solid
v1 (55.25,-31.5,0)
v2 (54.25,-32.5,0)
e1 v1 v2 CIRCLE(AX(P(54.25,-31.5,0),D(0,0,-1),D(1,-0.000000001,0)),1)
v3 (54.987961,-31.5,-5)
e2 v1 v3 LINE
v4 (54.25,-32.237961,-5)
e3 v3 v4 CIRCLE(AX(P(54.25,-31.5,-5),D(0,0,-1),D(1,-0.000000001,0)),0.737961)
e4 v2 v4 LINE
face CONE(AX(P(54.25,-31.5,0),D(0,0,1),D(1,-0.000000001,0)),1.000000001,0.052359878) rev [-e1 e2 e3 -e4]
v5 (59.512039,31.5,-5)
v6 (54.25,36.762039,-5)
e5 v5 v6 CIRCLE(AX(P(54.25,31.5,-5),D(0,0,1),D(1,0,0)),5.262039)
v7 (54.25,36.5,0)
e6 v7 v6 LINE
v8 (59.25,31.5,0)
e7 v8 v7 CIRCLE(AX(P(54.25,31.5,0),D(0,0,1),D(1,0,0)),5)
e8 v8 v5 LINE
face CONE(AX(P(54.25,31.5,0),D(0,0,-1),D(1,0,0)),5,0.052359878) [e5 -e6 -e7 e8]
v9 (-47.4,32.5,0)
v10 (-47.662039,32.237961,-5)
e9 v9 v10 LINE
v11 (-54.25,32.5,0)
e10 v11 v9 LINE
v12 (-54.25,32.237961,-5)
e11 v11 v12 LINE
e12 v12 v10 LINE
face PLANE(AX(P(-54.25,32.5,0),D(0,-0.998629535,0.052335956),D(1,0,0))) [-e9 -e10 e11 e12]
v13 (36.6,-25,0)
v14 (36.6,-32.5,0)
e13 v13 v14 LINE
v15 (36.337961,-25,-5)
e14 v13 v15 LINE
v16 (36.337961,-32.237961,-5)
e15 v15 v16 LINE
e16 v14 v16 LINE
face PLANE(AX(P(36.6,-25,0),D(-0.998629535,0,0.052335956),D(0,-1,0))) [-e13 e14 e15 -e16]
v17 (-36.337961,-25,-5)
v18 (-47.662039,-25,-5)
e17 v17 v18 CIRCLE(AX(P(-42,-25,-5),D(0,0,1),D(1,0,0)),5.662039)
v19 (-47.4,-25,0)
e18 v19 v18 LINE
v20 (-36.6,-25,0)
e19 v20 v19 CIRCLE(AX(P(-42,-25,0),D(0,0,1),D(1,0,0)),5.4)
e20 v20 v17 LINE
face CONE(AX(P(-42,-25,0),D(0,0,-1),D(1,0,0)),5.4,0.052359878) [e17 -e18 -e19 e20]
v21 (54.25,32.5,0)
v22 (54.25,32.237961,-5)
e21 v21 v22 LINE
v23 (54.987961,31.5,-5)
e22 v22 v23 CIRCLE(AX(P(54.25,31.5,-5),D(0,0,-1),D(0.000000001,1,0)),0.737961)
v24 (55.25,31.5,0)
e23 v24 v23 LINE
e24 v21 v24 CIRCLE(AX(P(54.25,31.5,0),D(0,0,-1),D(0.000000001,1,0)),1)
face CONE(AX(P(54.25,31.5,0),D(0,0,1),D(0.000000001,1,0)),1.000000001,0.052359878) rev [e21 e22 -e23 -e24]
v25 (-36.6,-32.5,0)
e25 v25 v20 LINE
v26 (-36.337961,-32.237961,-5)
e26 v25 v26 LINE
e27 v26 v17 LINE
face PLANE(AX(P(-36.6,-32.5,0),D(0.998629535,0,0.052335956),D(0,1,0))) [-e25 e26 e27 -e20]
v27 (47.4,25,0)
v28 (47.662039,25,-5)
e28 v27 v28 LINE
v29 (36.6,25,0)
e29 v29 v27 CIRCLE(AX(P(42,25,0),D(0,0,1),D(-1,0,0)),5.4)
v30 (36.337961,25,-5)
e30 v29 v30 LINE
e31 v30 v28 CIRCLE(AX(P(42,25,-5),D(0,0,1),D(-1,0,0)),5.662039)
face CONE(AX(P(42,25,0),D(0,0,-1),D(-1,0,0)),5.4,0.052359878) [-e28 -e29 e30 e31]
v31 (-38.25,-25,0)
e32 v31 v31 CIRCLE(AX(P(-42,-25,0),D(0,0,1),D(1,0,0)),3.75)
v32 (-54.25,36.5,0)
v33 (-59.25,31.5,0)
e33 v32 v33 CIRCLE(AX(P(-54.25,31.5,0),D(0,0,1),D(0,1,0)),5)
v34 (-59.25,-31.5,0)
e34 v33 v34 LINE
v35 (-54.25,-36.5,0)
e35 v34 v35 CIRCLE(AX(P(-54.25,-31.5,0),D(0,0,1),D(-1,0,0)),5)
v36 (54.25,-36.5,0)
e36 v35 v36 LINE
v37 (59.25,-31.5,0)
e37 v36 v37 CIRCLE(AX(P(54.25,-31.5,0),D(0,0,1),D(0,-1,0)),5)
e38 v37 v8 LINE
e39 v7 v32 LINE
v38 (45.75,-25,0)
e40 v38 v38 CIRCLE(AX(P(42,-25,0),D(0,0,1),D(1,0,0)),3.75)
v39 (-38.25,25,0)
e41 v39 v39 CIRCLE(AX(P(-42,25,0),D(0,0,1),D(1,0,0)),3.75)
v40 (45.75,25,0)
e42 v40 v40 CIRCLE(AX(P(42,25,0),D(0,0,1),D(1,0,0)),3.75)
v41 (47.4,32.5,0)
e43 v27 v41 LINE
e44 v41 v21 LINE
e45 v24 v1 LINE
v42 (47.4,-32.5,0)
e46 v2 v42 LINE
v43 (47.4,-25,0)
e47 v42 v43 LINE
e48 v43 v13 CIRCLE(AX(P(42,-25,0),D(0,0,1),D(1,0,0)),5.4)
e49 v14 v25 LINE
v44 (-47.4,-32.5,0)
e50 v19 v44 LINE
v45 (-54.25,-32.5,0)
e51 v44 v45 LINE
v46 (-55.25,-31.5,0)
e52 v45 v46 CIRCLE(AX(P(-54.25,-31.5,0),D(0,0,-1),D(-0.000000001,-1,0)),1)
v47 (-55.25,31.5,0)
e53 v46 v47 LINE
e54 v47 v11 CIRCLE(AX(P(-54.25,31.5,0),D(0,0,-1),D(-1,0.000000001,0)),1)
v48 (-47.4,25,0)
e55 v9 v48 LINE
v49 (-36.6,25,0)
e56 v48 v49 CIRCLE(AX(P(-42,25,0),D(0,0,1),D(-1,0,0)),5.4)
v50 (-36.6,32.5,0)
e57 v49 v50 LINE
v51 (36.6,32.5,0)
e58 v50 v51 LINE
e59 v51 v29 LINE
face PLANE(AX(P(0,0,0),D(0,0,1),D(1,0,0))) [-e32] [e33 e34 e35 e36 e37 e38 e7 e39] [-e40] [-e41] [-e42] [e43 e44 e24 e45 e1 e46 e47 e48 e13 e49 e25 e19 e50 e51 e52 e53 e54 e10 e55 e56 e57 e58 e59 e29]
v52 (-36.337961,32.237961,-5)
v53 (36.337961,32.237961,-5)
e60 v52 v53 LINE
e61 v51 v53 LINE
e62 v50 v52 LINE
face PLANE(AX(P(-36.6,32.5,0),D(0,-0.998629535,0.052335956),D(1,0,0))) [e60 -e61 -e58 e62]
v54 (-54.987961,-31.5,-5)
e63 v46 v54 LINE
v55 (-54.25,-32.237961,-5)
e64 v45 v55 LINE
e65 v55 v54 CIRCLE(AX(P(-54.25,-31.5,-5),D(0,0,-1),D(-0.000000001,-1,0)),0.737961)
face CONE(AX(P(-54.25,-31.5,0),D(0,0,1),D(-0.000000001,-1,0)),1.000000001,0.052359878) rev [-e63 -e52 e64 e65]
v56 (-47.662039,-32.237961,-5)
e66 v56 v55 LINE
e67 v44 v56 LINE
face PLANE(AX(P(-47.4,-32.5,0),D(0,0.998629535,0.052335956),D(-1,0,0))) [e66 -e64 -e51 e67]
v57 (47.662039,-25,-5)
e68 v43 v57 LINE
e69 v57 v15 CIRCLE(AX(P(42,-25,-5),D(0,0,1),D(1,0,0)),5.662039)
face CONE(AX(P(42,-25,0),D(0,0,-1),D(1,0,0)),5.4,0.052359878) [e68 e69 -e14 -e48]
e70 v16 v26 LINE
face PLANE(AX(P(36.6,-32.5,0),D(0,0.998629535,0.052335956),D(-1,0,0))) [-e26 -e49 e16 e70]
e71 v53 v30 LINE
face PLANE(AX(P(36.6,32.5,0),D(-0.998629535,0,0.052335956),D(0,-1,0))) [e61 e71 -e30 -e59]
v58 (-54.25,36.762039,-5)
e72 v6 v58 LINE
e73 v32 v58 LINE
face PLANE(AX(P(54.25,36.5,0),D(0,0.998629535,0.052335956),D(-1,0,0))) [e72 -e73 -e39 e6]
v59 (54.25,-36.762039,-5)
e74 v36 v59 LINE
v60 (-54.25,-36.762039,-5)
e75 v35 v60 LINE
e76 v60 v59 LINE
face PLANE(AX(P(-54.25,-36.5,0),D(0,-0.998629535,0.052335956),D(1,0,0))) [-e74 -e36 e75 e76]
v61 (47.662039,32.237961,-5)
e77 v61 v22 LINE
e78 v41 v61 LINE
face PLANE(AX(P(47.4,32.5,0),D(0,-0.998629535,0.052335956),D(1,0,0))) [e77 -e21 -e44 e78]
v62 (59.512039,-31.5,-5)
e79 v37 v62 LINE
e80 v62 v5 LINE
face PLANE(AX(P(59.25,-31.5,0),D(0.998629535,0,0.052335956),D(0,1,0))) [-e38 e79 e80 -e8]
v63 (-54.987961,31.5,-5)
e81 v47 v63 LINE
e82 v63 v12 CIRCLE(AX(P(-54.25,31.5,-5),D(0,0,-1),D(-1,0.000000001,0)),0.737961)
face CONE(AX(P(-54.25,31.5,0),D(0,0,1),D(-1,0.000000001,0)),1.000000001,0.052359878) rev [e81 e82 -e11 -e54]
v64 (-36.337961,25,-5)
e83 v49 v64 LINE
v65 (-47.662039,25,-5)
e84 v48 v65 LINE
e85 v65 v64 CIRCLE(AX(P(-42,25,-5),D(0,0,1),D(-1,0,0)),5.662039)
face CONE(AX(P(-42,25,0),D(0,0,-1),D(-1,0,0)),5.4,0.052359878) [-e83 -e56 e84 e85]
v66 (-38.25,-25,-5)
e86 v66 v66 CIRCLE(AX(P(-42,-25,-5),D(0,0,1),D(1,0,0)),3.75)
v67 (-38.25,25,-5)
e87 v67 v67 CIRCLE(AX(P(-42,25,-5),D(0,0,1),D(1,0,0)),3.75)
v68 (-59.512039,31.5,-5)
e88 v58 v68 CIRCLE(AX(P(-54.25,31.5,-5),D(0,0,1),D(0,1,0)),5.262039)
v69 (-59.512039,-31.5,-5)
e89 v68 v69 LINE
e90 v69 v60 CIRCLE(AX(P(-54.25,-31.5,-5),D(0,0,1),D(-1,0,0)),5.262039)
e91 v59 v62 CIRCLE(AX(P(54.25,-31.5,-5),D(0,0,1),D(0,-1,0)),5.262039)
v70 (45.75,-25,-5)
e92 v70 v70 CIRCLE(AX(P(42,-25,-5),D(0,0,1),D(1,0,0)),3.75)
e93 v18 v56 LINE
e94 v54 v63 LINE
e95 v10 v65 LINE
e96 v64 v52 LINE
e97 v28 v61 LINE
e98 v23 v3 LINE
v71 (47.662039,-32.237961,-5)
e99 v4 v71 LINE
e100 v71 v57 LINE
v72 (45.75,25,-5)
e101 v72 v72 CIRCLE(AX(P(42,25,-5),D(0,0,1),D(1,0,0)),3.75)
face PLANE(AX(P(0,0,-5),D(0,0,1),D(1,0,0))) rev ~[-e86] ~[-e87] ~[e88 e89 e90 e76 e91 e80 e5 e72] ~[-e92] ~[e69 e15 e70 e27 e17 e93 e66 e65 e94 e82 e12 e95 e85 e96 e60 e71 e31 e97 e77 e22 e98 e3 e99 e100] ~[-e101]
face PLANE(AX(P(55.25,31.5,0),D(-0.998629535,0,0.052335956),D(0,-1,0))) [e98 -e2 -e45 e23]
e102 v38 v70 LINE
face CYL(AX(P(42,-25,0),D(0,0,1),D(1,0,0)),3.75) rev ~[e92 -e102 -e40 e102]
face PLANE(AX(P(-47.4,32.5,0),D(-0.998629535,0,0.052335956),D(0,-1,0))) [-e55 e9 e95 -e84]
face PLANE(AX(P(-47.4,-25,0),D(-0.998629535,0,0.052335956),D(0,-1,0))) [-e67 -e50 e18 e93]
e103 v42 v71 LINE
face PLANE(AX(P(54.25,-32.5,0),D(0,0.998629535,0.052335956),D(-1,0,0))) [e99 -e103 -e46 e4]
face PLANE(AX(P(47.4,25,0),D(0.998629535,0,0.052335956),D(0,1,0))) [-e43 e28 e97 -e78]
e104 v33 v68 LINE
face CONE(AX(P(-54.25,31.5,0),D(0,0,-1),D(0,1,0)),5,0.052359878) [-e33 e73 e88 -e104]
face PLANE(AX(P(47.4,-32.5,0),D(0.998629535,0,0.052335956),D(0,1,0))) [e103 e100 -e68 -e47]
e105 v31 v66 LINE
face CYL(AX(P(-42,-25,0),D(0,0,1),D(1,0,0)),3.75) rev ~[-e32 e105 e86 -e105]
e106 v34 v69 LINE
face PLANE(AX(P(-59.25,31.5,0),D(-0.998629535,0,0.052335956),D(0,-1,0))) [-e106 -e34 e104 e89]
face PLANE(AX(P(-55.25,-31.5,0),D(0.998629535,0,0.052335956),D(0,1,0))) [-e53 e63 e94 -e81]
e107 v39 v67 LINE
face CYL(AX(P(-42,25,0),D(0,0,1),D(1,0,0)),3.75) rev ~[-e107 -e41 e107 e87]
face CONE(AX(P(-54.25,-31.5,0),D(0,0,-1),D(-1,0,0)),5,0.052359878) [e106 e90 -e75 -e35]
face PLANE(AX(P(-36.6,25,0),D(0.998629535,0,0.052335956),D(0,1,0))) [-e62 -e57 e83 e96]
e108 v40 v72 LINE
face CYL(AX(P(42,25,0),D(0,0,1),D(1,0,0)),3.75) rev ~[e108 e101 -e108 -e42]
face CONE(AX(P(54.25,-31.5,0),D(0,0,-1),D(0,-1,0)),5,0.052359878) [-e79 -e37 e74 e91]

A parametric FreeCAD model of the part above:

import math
import FreeCAD as App
import Part
import Sketcher

V = App.Vector


def faces_at(feature, points):
    """Names of the faces that lie closest to the given points."""
    faces = feature.Shape.Faces
    near = lambda p: min(range(len(faces)), key=lambda i: faces[i].distToShape(Part.Vertex(*p))[0])
    return sorted({f"Face{near(p) + 1}" for p in points})

doc = App.newDocument("Part")
body = doc.addObject("PartDesign::Body", "Body")

# Sketch on XY plane
sketch1 = body.newObject("Sketcher::SketchObject", "Sketch")
sketch1.AttachmentSupport = (doc.getObject("XY_Plane"), [""])
sketch1.MapMode = "FlatFace"
sketch1.addGeometry(Part.ArcOfCircle(Part.Circle(V(-54.25, -31.5, 0), V(0, 0, 1), 5), math.radians(180), math.radians(270)), False)
sketch1.addGeometry(Part.LineSegment(V(-54.25, -36.5, 0), V(54.25, -36.5, 0)), False)
sketch1.addGeometry(Part.ArcOfCircle(Part.Circle(V(54.25, -31.5, 0), V(0, 0, 1), 5), math.radians(-90), math.radians(0)), False)
sketch1.addGeometry(Part.LineSegment(V(59.25, -31.5, 0), V(59.25, 31.5, 0)), False)
sketch1.addGeometry(Part.ArcOfCircle(Part.Circle(V(54.25, 31.5, 0), V(0, 0, 1), 5), math.radians(0), math.radians(90)), False)
sketch1.addGeometry(Part.LineSegment(V(54.25, 36.5, 0), V(-54.25, 36.5, 0)), False)
sketch1.addGeometry(Part.ArcOfCircle(Part.Circle(V(-54.25, 31.5, 0), V(0, 0, 1), 5), math.radians(90), math.radians(180)), False)
sketch1.addGeometry(Part.LineSegment(V(-59.25, 31.5, 0), V(-59.25, -31.5, 0)), False)
sketch1.addGeometry(Part.ArcOfCircle(Part.Circle(V(-54.25, 31.5, 0), V(0, 0, 1), 1), math.radians(90), math.radians(180)), False)
sketch1.addGeometry(Part.LineSegment(V(-54.25, 32.5, 0), V(-47.4, 32.5, 0)), False)
sketch1.addGeometry(Part.LineSegment(V(-47.4, 32.5, 0), V(-47.4, 25, 0)), False)
sketch1.addGeometry(Part.ArcOfCircle(Part.Circle(V(-42, 25, 0), V(0, 0, 1), 5.4), math.radians(180), math.radians(360)), False)
sketch1.addGeometry(Part.LineSegment(V(-36.6, 25, 0), V(-36.6, 32.5, 0)), False)
sketch1.addGeometry(Part.LineSegment(V(-36.6, 32.5, 0), V(36.6, 32.5, 0)), False)
sketch1.addGeometry(Part.LineSegment(V(36.6, 32.5, 0), V(36.6, 25, 0)), False)
sketch1.addGeometry(Part.ArcOfCircle(Part.Circle(V(42, 25, 0), V(0, 0, 1), 5.4), math.radians(180), math.radians(360)), False)
sketch1.addGeometry(Part.LineSegment(V(47.4, 25, 0), V(47.4, 32.5, 0)), False)
sketch1.addGeometry(Part.LineSegment(V(47.4, 32.5, 0), V(54.25, 32.5, 0)), False)
sketch1.addGeometry(Part.ArcOfCircle(Part.Circle(V(54.25, 31.5, 0), V(0, 0, 1), 1), math.radians(0), math.radians(90)), False)
sketch1.addGeometry(Part.LineSegment(V(55.25, 31.5, 0), V(55.25, -31.5, 0)), False)
sketch1.addGeometry(Part.ArcOfCircle(Part.Circle(V(54.25, -31.5, 0), V(0, 0, 1), 1), math.radians(-90), math.radians(0)), False)
sketch1.addGeometry(Part.LineSegment(V(54.25, -32.5, 0), V(47.4, -32.5, 0)), False)
sketch1.addGeometry(Part.LineSegment(V(47.4, -32.5, 0), V(47.4, -25, 0)), False)
sketch1.addGeometry(Part.ArcOfCircle(Part.Circle(V(42, -25, 0), V(0, 0, 1), 5.4), math.radians(0), math.radians(180)), False)
sketch1.addGeometry(Part.LineSegment(V(36.6, -25, 0), V(36.6, -32.5, 0)), False)
sketch1.addGeometry(Part.LineSegment(V(36.6, -32.5, 0), V(-36.6, -32.5, 0)), False)
sketch1.addGeometry(Part.LineSegment(V(-36.6, -32.5, 0), V(-36.6, -25, 0)), False)
sketch1.addGeometry(Part.ArcOfCircle(Part.Circle(V(-42, -25, 0), V(0, 0, 1), 5.4), math.radians(0), math.radians(180)), False)
sketch1.addGeometry(Part.LineSegment(V(-47.4, -25, 0), V(-47.4, -32.5, 0)), False)
sketch1.addGeometry(Part.LineSegment(V(-47.4, -32.5, 0), V(-54.25, -32.5, 0)), False)
sketch1.addGeometry(Part.ArcOfCircle(Part.Circle(V(-54.25, -31.5, 0), V(0, 0, 1), 1), math.radians(-180), math.radians(-90)), False)
sketch1.addGeometry(Part.LineSegment(V(-55.25, -31.5, 0), V(-55.25, 31.5, 0)), False)
sketch1.addConstraint(Sketcher.Constraint("Tangent", 0, 2, 1, 1))
sketch1.addConstraint(Sketcher.Constraint("Tangent", 1, 2, 2, 1))
sketch1.addConstraint(Sketcher.Constraint("Tangent", 2, 2, 3, 1))
sketch1.addConstraint(Sketcher.Constraint("Tangent", 3, 2, 4, 1))
sketch1.addConstraint(Sketcher.Constraint("Tangent", 4, 2, 5, 1))
sketch1.addConstraint(Sketcher.Constraint("Tangent", 5, 2, 6, 1))
sketch1.addConstraint(Sketcher.Constraint("Tangent", 6, 2, 7, 1))
sketch1.addConstraint(Sketcher.Constraint("Tangent", 7, 2, 0, 1))
sketch1.addConstraint(Sketcher.Constraint("Tangent", 8, 1, 9, 1))
sketch1.addConstraint(Sketcher.Constraint("Coincident", 9, 2, 10, 1))
sketch1.addConstraint(Sketcher.Constraint("Tangent", 10, 2, 11, 1))
sketch1.addConstraint(Sketcher.Constraint("Tangent", 11, 2, 12, 1))
sketch1.addConstraint(Sketcher.Constraint("Coincident", 12, 2, 13, 1))
sketch1.addConstraint(Sketcher.Constraint("Coincident", 13, 2, 14, 1))
sketch1.addConstraint(Sketcher.Constraint("Tangent", 14, 2, 15, 1))
sketch1.addConstraint(Sketcher.Constraint("Tangent", 15, 2, 16, 1))
sketch1.addConstraint(Sketcher.Constraint("Coincident", 16, 2, 17, 1))
sketch1.addConstraint(Sketcher.Constraint("Tangent", 17, 2, 18, 2))
sketch1.addConstraint(Sketcher.Constraint("Tangent", 18, 1, 19, 1))
sketch1.addConstraint(Sketcher.Constraint("Tangent", 19, 2, 20, 2))
sketch1.addConstraint(Sketcher.Constraint("Tangent", 20, 1, 21, 1))
sketch1.addConstraint(Sketcher.Constraint("Coincident", 21, 2, 22, 1))
sketch1.addConstraint(Sketcher.Constraint("Tangent", 22, 2, 23, 1))
sketch1.addConstraint(Sketcher.Constraint("Tangent", 23, 2, 24, 1))
sketch1.addConstraint(Sketcher.Constraint("Coincident", 24, 2, 25, 1))
sketch1.addConstraint(Sketcher.Constraint("Coincident", 25, 2, 26, 1))
sketch1.addConstraint(Sketcher.Constraint("Tangent", 26, 2, 27, 1))
sketch1.addConstraint(Sketcher.Constraint("Tangent", 27, 2, 28, 1))
sketch1.addConstraint(Sketcher.Constraint("Coincident", 28, 2, 29, 1))
sketch1.addConstraint(Sketcher.Constraint("Tangent", 29, 2, 30, 2))
sketch1.addConstraint(Sketcher.Constraint("Tangent", 30, 1, 31, 1))
sketch1.addConstraint(Sketcher.Constraint("Tangent", 31, 2, 8, 2))
sketch1.addConstraint(Sketcher.Constraint("Horizontal", 1))
sketch1.addConstraint(Sketcher.Constraint("Vertical", 3))
sketch1.addConstraint(Sketcher.Constraint("Horizontal", 5))
sketch1.addConstraint(Sketcher.Constraint("Vertical", 7))
sketch1.addConstraint(Sketcher.Constraint("Horizontal", 9))
sketch1.addConstraint(Sketcher.Constraint("Vertical", 10))
sketch1.addConstraint(Sketcher.Constraint("Vertical", 12))
sketch1.addConstraint(Sketcher.Constraint("Horizontal", 13))
sketch1.addConstraint(Sketcher.Constraint("Vertical", 14))
sketch1.addConstraint(Sketcher.Constraint("Vertical", 16))
sketch1.addConstraint(Sketcher.Constraint("Horizontal", 17))
sketch1.addConstraint(Sketcher.Constraint("Vertical", 19))
sketch1.addConstraint(Sketcher.Constraint("Horizontal", 21))
sketch1.addConstraint(Sketcher.Constraint("Vertical", 22))
sketch1.addConstraint(Sketcher.Constraint("Vertical", 24))
sketch1.addConstraint(Sketcher.Constraint("Horizontal", 25))
sketch1.addConstraint(Sketcher.Constraint("Vertical", 26))
sketch1.addConstraint(Sketcher.Constraint("Vertical", 28))
sketch1.addConstraint(Sketcher.Constraint("Horizontal", 29))
sketch1.addConstraint(Sketcher.Constraint("Vertical", 31))
sketch1.addConstraint(Sketcher.Constraint("Coincident", 8, 3, 6, 3))
sketch1.addConstraint(Sketcher.Constraint("Coincident", 18, 3, 4, 3))
sketch1.addConstraint(Sketcher.Constraint("Coincident", 20, 3, 2, 3))
sketch1.addConstraint(Sketcher.Constraint("Coincident", 30, 3, 0, 3))
sketch1.addConstraint(Sketcher.Constraint("Equal", 0, 2))
sketch1.addConstraint(Sketcher.Constraint("Equal", 2, 4))
sketch1.addConstraint(Sketcher.Constraint("Equal", 4, 6))
sketch1.addConstraint(Sketcher.Constraint("Equal", 11, 15))
sketch1.addConstraint(Sketcher.Constraint("Equal", 8, 18))
sketch1.addConstraint(Sketcher.Constraint("Equal", 15, 23))
sketch1.addConstraint(Sketcher.Constraint("Equal", 23, 27))
sketch1.addConstraint(Sketcher.Constraint("Symmetric", 0, 3, 4, 3, -1, 1))
sketch1.addConstraint(Sketcher.Constraint("Symmetric", 11, 3, 23, 3, -1, 1))
sketch1.addConstraint(Sketcher.Constraint("Symmetric", 15, 3, 27, 3, -1, 1))
sketch1.addConstraint(Sketcher.Constraint("Symmetric", 11, 3, 15, 3, -2))
sketch1.addConstraint(Sketcher.Constraint("Horizontal", 9, 2, 12, 2))
sketch1.addConstraint(Sketcher.Constraint("Horizontal", 21, 2, 24, 2))
sketch1.addConstraint(Sketcher.Constraint("Radius", 0, 5.0))
sketch1.addConstraint(Sketcher.Constraint("Radius", 8, 1.0))
sketch1.addConstraint(Sketcher.Constraint("Radius", 11, 5.4))
sketch1.addConstraint(Sketcher.Constraint("DistanceY", 3, 1, 3, 2, 63.0))
sketch1.addConstraint(Sketcher.Constraint("DistanceX", 1, 1, 1, 2, 108.5))
sketch1.addConstraint(Sketcher.Constraint("DistanceX", 13, 1, 13, 2, 73.2))
sketch1.addConstraint(Sketcher.Constraint("DistanceY", 10, 2, 10, 1, 7.5))
pad1 = body.newObject("PartDesign::Pad", "Pad")
pad1.Profile = sketch1
pad1.Length = 5
pad1.Reversed = True
doc.recompute()

draft = body.newObject("PartDesign::Draft", "Draft")
draft.Base = (pad1, faces_at(pad1, [
    (-57.786, -35.036, -2.5),
    (0, -36.5, -2.5),
    (57.786, -35.036, -2.5),
    (59.25, 0, -2.5),
    (57.786, 35.036, -2.5),
    (0, 36.5, -2.5),
    (-57.786, 35.036, -2.5),
    (-59.25, 0, -2.5),
    (-50.825, 32.5, -2.5),
    (-47.4, 28.75, -2.5),
    (-42, 19.6, -2.5),
    (-36.6, 28.75, -2.5),
    (0, 32.5, -2.5),
    (36.6, 28.75, -2.5),
    (42, 19.6, -2.5),
    (47.4, 28.75, -2.5),
    (50.825, 32.5, -2.5),
    (54.957, 32.207, -2.5),
    (55.25, 0, -2.5),
    (54.957, -32.207, -2.5),
    (50.825, -32.5, -2.5),
    (47.4, -28.75, -2.5),
    (42, -19.6, -2.5),
    (36.6, -28.75, -2.5),
    (0, -32.5, -2.5),
    (-36.6, -28.75, -2.5),
    (-42, -19.6, -2.5),
    (-47.4, -28.75, -2.5),
    (-50.825, -32.5, -2.5),
    (-54.957, -32.207, -2.5),
    (-55.25, 0, -2.5),
    (-54.957, 32.207, -2.5),
]))
draft.NeutralPlane = (doc.getObject("XY_Plane"), [""])
draft.Angle = 3
draft.Reversed = False

# Sketch on XY plane
sketch2 = body.newObject("Sketcher::SketchObject", "Sketch001")
sketch2.AttachmentSupport = (doc.getObject("XY_Plane"), [""])
sketch2.MapMode = "FlatFace"
sketch2.addGeometry(Part.Circle(V(-42, 25, 0), V(0, 0, 1), 3.75), False)
sketch2.addGeometry(Part.Circle(V(-42, -25, 0), V(0, 0, 1), 3.75), False)
sketch2.addGeometry(Part.Circle(V(42, -25, 0), V(0, 0, 1), 3.75), False)
sketch2.addGeometry(Part.Circle(V(42, 25, 0), V(0, 0, 1), 3.75), False)
sketch2.addConstraint(Sketcher.Constraint("Equal", 0, 1))
sketch2.addConstraint(Sketcher.Constraint("Equal", 1, 2))
sketch2.addConstraint(Sketcher.Constraint("Equal", 2, 3))
sketch2.addConstraint(Sketcher.Constraint("Symmetric", 0, 3, 2, 3, -1, 1))
sketch2.addConstraint(Sketcher.Constraint("Symmetric", 1, 3, 3, 3, -1, 1))
sketch2.addConstraint(Sketcher.Constraint("Symmetric", 1, 3, 2, 3, -2))
sketch2.addConstraint(Sketcher.Constraint("Diameter", 0, 7.5))
sketch2.addConstraint(Sketcher.Constraint("DistanceX", 0, 3, -1, 1, 42.0))
sketch2.addConstraint(Sketcher.Constraint("DistanceY", -1, 1, 0, 3, 25.0))
pocket1 = body.newObject("PartDesign::Pocket", "Pocket")
pocket1.Profile = sketch2
pocket1.Type = "ThroughAll"

doc.recompute()
